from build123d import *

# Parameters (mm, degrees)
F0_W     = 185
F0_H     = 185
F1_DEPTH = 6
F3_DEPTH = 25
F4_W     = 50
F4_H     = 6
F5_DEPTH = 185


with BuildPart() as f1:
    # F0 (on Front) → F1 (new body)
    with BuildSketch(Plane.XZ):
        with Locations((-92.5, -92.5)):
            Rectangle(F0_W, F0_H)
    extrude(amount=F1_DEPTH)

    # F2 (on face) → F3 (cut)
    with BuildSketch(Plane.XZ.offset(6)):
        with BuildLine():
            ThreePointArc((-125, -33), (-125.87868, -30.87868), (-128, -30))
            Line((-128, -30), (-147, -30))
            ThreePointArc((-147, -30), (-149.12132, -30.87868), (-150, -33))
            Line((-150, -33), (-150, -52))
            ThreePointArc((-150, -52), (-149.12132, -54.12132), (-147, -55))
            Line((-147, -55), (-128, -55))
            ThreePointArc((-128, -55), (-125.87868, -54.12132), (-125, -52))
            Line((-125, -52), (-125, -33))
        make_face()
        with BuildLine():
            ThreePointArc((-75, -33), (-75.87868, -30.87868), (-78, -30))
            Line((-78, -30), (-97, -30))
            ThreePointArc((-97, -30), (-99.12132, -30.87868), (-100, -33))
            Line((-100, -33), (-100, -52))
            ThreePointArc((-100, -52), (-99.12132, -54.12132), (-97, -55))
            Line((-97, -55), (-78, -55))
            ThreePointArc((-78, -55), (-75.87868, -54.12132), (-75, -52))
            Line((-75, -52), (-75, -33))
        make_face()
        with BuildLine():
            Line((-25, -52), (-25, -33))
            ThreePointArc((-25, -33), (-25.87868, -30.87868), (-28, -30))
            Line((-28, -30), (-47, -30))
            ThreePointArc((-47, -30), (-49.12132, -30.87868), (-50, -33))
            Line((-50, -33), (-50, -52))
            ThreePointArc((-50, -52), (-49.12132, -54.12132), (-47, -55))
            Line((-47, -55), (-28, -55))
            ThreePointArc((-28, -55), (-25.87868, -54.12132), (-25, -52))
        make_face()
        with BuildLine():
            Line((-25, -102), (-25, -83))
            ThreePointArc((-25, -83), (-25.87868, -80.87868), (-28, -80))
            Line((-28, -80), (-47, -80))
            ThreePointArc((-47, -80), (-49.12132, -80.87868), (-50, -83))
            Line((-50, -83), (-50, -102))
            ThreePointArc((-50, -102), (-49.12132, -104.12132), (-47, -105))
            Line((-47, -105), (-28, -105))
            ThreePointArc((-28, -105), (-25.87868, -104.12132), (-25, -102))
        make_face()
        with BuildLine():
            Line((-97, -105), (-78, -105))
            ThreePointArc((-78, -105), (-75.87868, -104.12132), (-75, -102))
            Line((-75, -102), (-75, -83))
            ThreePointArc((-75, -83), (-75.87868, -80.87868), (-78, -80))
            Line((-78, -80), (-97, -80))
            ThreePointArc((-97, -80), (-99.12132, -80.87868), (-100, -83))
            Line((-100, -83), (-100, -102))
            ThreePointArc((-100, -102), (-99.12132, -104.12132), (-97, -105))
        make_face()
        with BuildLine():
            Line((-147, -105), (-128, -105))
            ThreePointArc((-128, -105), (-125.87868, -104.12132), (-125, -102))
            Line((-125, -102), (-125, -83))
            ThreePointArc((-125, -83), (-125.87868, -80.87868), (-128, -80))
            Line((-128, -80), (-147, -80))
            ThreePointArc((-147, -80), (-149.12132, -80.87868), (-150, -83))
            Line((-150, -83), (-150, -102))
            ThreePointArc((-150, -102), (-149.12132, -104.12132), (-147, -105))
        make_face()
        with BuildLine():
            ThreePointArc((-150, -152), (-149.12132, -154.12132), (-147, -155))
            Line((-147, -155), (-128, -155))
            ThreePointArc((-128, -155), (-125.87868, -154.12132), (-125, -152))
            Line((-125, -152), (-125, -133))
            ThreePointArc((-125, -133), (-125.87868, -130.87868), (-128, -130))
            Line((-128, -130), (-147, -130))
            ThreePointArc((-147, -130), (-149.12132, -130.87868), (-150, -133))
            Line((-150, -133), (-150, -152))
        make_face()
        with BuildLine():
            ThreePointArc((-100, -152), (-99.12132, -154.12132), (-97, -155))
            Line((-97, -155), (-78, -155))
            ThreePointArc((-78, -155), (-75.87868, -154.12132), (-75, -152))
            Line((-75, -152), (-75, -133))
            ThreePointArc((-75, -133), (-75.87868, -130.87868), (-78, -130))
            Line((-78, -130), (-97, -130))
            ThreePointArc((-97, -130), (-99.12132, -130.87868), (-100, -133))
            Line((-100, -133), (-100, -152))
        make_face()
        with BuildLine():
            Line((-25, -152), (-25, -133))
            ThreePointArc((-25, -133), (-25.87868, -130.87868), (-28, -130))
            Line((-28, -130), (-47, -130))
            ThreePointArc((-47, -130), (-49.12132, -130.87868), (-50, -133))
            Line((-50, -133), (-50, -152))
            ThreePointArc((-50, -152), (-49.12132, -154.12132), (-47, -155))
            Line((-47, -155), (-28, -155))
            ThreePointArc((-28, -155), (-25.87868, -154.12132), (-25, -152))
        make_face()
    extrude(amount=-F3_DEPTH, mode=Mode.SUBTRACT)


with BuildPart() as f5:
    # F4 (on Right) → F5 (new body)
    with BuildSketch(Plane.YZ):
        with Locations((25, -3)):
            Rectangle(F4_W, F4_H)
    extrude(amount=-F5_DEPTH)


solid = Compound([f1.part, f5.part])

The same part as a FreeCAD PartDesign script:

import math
import FreeCAD as App
import Part
import Sketcher
Q = App.Units.Quantity

doc = App.newDocument("Part")
body = doc.addObject("PartDesign::Body", "Body")

# Sketch on XZ plane
sketch1 = body.newObject("Sketcher::SketchObject", "Sketch")
sketch1.AttachmentSupport = (doc.getObject("XZ_Plane"), [""])
sketch1.MapMode = "FlatFace"
sketch1.addGeometry([
    Part.LineSegment(App.Vector(-185, 0, 0), App.Vector(-185, -185, 0)),
    Part.LineSegment(App.Vector(-185, -185, 0), App.Vector(0, -185, 0)),
    Part.LineSegment(App.Vector(0, -185, 0), App.Vector(0, 0, 0)),
    Part.LineSegment(App.Vector(0, 0, 0), App.Vector(-185, 0, 0)),
], False)
sketch1.addConstraint([
    Sketcher.Constraint("Coincident", 0, 2, 1, 1),
    Sketcher.Constraint("Coincident", 1, 2, 2, 1),
    Sketcher.Constraint("Coincident", 2, 2, 3, 1),
    Sketcher.Constraint("Coincident", 3, 2, 0, 1),
    Sketcher.Constraint("Vertical", 0),
    Sketcher.Constraint("Horizontal", 1),
    Sketcher.Constraint("Vertical", 2),
    Sketcher.Constraint("Horizontal", 3),
    Sketcher.Constraint("Coincident", 2, 2, -1, 1),
    Sketcher.Constraint("Equal", 3, 0),
    Sketcher.Constraint("DistanceX", 1, 1, 1, 2, Q("185 mm")),
])
pad1 = body.newObject("PartDesign::Pad", "Pad")
pad1.Profile = sketch1
pad1.Length = 6

# Sketch on XZ plane
sketch2 = body.newObject("Sketcher::SketchObject", "Sketch001")
sketch2.AttachmentSupport = (doc.getObject("XZ_Plane"), [""])
sketch2.MapMode = "FlatFace"
sketch2.AttachmentOffset = App.Placement(App.Vector(0, 0, 6), App.Rotation())
sketch2.addGeometry([
    Part.ArcOfCircle(Part.Circle(App.Vector(-128, -33, 0), App.Vector(0, 0, 1), 3), math.radians(0), math.radians(90)),  # 0
    Part.LineSegment(App.Vector(-128, -30, 0), App.Vector(-147, -30, 0)),  # 1
    Part.ArcOfCircle(Part.Circle(App.Vector(-147, -33, 0), App.Vector(0, 0, 1), 3), math.radians(90), math.radians(180)),  # 2
    Part.LineSegment(App.Vector(-150, -33, 0), App.Vector(-150, -52, 0)),  # 3
    Part.ArcOfCircle(Part.Circle(App.Vector(-147, -52, 0), App.Vector(0, 0, 1), 3), math.radians(-180), math.radians(-90)),  # 4
    Part.LineSegment(App.Vector(-147, -55, 0), App.Vector(-128, -55, 0)),  # 5
    Part.ArcOfCircle(Part.Circle(App.Vector(-128, -52, 0), App.Vector(0, 0, 1), 3), math.radians(-90), math.radians(0)),  # 6
    Part.LineSegment(App.Vector(-125, -52, 0), App.Vector(-125, -33, 0)),  # 7
    Part.ArcOfCircle(Part.Circle(App.Vector(-78, -33, 0), App.Vector(0, 0, 1), 3), math.radians(0), math.radians(90)),  # 8
    Part.LineSegment(App.Vector(-78, -30, 0), App.Vector(-97, -30, 0)),  # 9
    Part.ArcOfCircle(Part.Circle(App.Vector(-97, -33, 0), App.Vector(0, 0, 1), 3), math.radians(90), math.radians(180)),  # 10
    Part.LineSegment(App.Vector(-100, -33, 0), App.Vector(-100, -52, 0)),  # 11
    Part.ArcOfCircle(Part.Circle(App.Vector(-97, -52, 0), App.Vector(0, 0, 1), 3), math.radians(-180), math.radians(-90)),  # 12
    Part.LineSegment(App.Vector(-97, -55, 0), App.Vector(-78, -55, 0)),  # 13
    Part.ArcOfCircle(Part.Circle(App.Vector(-78, -52, 0), App.Vector(0, 0, 1), 3), math.radians(-90), math.radians(0)),  # 14
    Part.LineSegment(App.Vector(-75, -52, 0), App.Vector(-75, -33, 0)),  # 15
    Part.LineSegment(App.Vector(-25, -52, 0), App.Vector(-25, -33, 0)),  # 16
    Part.ArcOfCircle(Part.Circle(App.Vector(-28, -33, 0), App.Vector(0, 0, 1), 3), math.radians(0), math.radians(90)),  # 17
    Part.LineSegment(App.Vector(-28, -30, 0), App.Vector(-47, -30, 0)),  # 18
    Part.ArcOfCircle(Part.Circle(App.Vector(-47, -33, 0), App.Vector(0, 0, 1), 3), math.radians(90), math.radians(180)),  # 19
    Part.LineSegment(App.Vector(-50, -33, 0), App.Vector(-50, -52, 0)),  # 20
    Part.ArcOfCircle(Part.Circle(App.Vector(-47, -52, 0), App.Vector(0, 0, 1), 3), math.radians(-180), math.radians(-90)),  # 21
    Part.LineSegment(App.Vector(-47, -55, 0), App.Vector(-28, -55, 0)),  # 22
    Part.ArcOfCircle(Part.Circle(App.Vector(-28, -52, 0), App.Vector(0, 0, 1), 3), math.radians(-90), math.radians(0)),  # 23
    Part.LineSegment(App.Vector(-25, -102, 0), App.Vector(-25, -83, 0)),  # 24
    Part.ArcOfCircle(Part.Circle(App.Vector(-28, -83, 0), App.Vector(0, 0, 1), 3), math.radians(0), math.radians(90)),  # 25
    Part.LineSegment(App.Vector(-28, -80, 0), App.Vector(-47, -80, 0)),  # 26
    Part.ArcOfCircle(Part.Circle(App.Vector(-47, -83, 0), App.Vector(0, 0, 1), 3), math.radians(90), math.radians(180)),  # 27
    Part.LineSegment(App.Vector(-50, -83, 0), App.Vector(-50, -102, 0)),  # 28
    Part.ArcOfCircle(Part.Circle(App.Vector(-47, -102, 0), App.Vector(0, 0, 1), 3), math.radians(-180), math.radians(-90)),  # 29
    Part.LineSegment(App.Vector(-47, -105, 0), App.Vector(-28, -105, 0)),  # 30
    Part.ArcOfCircle(Part.Circle(App.Vector(-28, -102, 0), App.Vector(0, 0, 1), 3), math.radians(-90), math.radians(0)),  # 31
    Part.LineSegment(App.Vector(-97, -105, 0), App.Vector(-78, -105, 0)),  # 32
    Part.ArcOfCircle(Part.Circle(App.Vector(-78, -102, 0), App.Vector(0, 0, 1), 3), math.radians(-90), math.radians(0)),  # 33
    Part.LineSegment(App.Vector(-75, -102, 0), App.Vector(-75, -83, 0)),  # 34
    Part.ArcOfCircle(Part.Circle(App.Vector(-78, -83, 0), App.Vector(0, 0, 1), 3), math.radians(0), math.radians(90)),  # 35
    Part.LineSegment(App.Vector(-78, -80, 0), App.Vector(-97, -80, 0)),  # 36
    Part.ArcOfCircle(Part.Circle(App.Vector(-97, -83, 0), App.Vector(0, 0, 1), 3), math.radians(90), math.radians(180)),  # 37
    Part.LineSegment(App.Vector(-100, -83, 0), App.Vector(-100, -102, 0)),  # 38
    Part.ArcOfCircle(Part.Circle(App.Vector(-97, -102, 0), App.Vector(0, 0, 1), 3), math.radians(-180), math.radians(-90)),  # 39
    Part.LineSegment(App.Vector(-147, -105, 0), App.Vector(-128, -105, 0)),  # 40
    Part.ArcOfCircle(Part.Circle(App.Vector(-128, -102, 0), App.Vector(0, 0, 1), 3), math.radians(-90), math.radians(0)),  # 41
    Part.LineSegment(App.Vector(-125, -102, 0), App.Vector(-125, -83, 0)),  # 42
    Part.ArcOfCircle(Part.Circle(App.Vector(-128, -83, 0), App.Vector(0, 0, 1), 3), math.radians(0), math.radians(90)),  # 43
    Part.LineSegment(App.Vector(-128, -80, 0), App.Vector(-147, -80, 0)),  # 44
    Part.ArcOfCircle(Part.Circle(App.Vector(-147, -83, 0), App.Vector(0, 0, 1), 3), math.radians(90), math.radians(180)),  # 45
    Part.LineSegment(App.Vector(-150, -83, 0), App.Vector(-150, -102, 0)),  # 46
    Part.ArcOfCircle(Part.Circle(App.Vector(-147, -102, 0), App.Vector(0, 0, 1), 3), math.radians(-180), math.radians(-90)),  # 47
    Part.ArcOfCircle(Part.Circle(App.Vector(-147, -152, 0), App.Vector(0, 0, 1), 3), math.radians(-180), math.radians(-90)),  # 48
    Part.LineSegment(App.Vector(-147, -155, 0), App.Vector(-128, -155, 0)),  # 49
    Part.ArcOfCircle(Part.Circle(App.Vector(-128, -152, 0), App.Vector(0, 0, 1), 3), math.radians(-90), math.radians(0)),  # 50
    Part.LineSegment(App.Vector(-125, -152, 0), App.Vector(-125, -133, 0)),  # 51
    Part.ArcOfCircle(Part.Circle(App.Vector(-128, -133, 0), App.Vector(0, 0, 1), 3), math.radians(0), math.radians(90)),  # 52
    Part.LineSegment(App.Vector(-128, -130, 0), App.Vector(-147, -130, 0)),  # 53
    Part.ArcOfCircle(Part.Circle(App.Vector(-147, -133, 0), App.Vector(0, 0, 1), 3), math.radians(90), math.radians(180)),  # 54
    Part.LineSegment(App.Vector(-150, -133, 0), App.Vector(-150, -152, 0)),  # 55
    Part.ArcOfCircle(Part.Circle(App.Vector(-97, -152, 0), App.Vector(0, 0, 1), 3), math.radians(-180), math.radians(-90)),  # 56
    Part.LineSegment(App.Vector(-97, -155, 0), App.Vector(-78, -155, 0)),  # 57
    Part.ArcOfCircle(Part.Circle(App.Vector(-78, -152, 0), App.Vector(0, 0, 1), 3), math.radians(-90), math.radians(0)),  # 58
    Part.LineSegment(App.Vector(-75, -152, 0), App.Vector(-75, -133, 0)),  # 59
    Part.ArcOfCircle(Part.Circle(App.Vector(-78, -133, 0), App.Vector(0, 0, 1), 3), math.radians(0), math.radians(90)),  # 60
    Part.LineSegment(App.Vector(-78, -130, 0), App.Vector(-97, -130, 0)),  # 61
    Part.ArcOfCircle(Part.Circle(App.Vector(-97, -133, 0), App.Vector(0, 0, 1), 3), math.radians(90), math.radians(180)),  # 62
    Part.LineSegment(App.Vector(-100, -133, 0), App.Vector(-100, -152, 0)),  # 63
    Part.LineSegment(App.Vector(-25, -152, 0), App.Vector(-25, -133, 0)),  # 64
    Part.ArcOfCircle(Part.Circle(App.Vector(-28, -133, 0), App.Vector(0, 0, 1), 3), math.radians(0), math.radians(90)),  # 65
    Part.LineSegment(App.Vector(-28, -130, 0), App.Vector(-47, -130, 0)),  # 66
    Part.ArcOfCircle(Part.Circle(App.Vector(-47, -133, 0), App.Vector(0, 0, 1), 3), math.radians(90), math.radians(180)),  # 67
    Part.LineSegment(App.Vector(-50, -133, 0), App.Vector(-50, -152, 0)),  # 68
    Part.ArcOfCircle(Part.Circle(App.Vector(-47, -152, 0), App.Vector(0, 0, 1), 3), math.radians(-180), math.radians(-90)),  # 69
    Part.LineSegment(App.Vector(-47, -155, 0), App.Vector(-28, -155, 0)),  # 70
    Part.ArcOfCircle(Part.Circle(App.Vector(-28, -152, 0), App.Vector(0, 0, 1), 3), math.radians(-90), math.radians(0)),  # 71
], False)
sketch2.addConstraint([
    Sketcher.Constraint("Tangent", 0, 2, 1, 1),
    Sketcher.Constraint("Tangent", 1, 2, 2, 1),
    Sketcher.Constraint("Tangent", 2, 2, 3, 1),
    Sketcher.Constraint("Tangent", 3, 2, 4, 1),
    Sketcher.Constraint("Tangent", 4, 2, 5, 1),
    Sketcher.Constraint("Tangent", 5, 2, 6, 1),
    Sketcher.Constraint("Tangent", 6, 2, 7, 1),
    Sketcher.Constraint("Tangent", 7, 2, 0, 1),
    Sketcher.Constraint("Tangent", 8, 2, 9, 1),
    Sketcher.Constraint("Tangent", 9, 2, 10, 1),
    Sketcher.Constraint("Tangent", 10, 2, 11, 1),
    Sketcher.Constraint("Tangent", 11, 2, 12, 1),
    Sketcher.Constraint("Tangent", 12, 2, 13, 1),
    Sketcher.Constraint("Tangent", 13, 2, 14, 1),
    Sketcher.Constraint("Tangent", 14, 2, 15, 1),
    Sketcher.Constraint("Tangent", 15, 2, 8, 1),
    Sketcher.Constraint("Tangent", 16, 2, 17, 1),
    Sketcher.Constraint("Tangent", 17, 2, 18, 1),
    Sketcher.Constraint("Tangent", 18, 2, 19, 1),
    Sketcher.Constraint("Tangent", 19, 2, 20, 1),
    Sketcher.Constraint("Tangent", 20, 2, 21, 1),
    Sketcher.Constraint("Tangent", 21, 2, 22, 1),
    Sketcher.Constraint("Tangent", 22, 2, 23, 1),
    Sketcher.Constraint("Tangent", 23, 2, 16, 1),
    Sketcher.Constraint("Tangent", 24, 2, 25, 1),
    Sketcher.Constraint("Tangent", 25, 2, 26, 1),
    Sketcher.Constraint("Tangent", 26, 2, 27, 1),
    Sketcher.Constraint("Tangent", 27, 2, 28, 1),
    Sketcher.Constraint("Tangent", 28, 2, 29, 1),
    Sketcher.Constraint("Tangent", 29, 2, 30, 1),
    Sketcher.Constraint("Tangent", 30, 2, 31, 1),
    Sketcher.Constraint("Tangent", 31, 2, 24, 1),
    Sketcher.Constraint("Tangent", 32, 2, 33, 1),
    Sketcher.Constraint("Tangent", 33, 2, 34, 1),
    Sketcher.Constraint("Tangent", 34, 2, 35, 1),
    Sketcher.Constraint("Tangent", 35, 2, 36, 1),
    Sketcher.Constraint("Tangent", 36, 2, 37, 1),
    Sketcher.Constraint("Tangent", 37, 2, 38, 1),
    Sketcher.Constraint("Tangent", 38, 2, 39, 1),
    Sketcher.Constraint("Tangent", 39, 2, 32, 1),
    Sketcher.Constraint("Tangent", 40, 2, 41, 1),
    Sketcher.Constraint("Tangent", 41, 2, 42, 1),
    Sketcher.Constraint("Tangent", 42, 2, 43, 1),
    Sketcher.Constraint("Tangent", 43, 2, 44, 1),
    Sketcher.Constraint("Tangent", 44, 2, 45, 1),
    Sketcher.Constraint("Tangent", 45, 2, 46, 1),
    Sketcher.Constraint("Tangent", 46, 2, 47, 1),
    Sketcher.Constraint("Tangent", 47, 2, 40, 1),
    Sketcher.Constraint("Tangent", 48, 2, 49, 1),
    Sketcher.Constraint("Tangent", 49, 2, 50, 1),
    Sketcher.Constraint("Tangent", 50, 2, 51, 1),
    Sketcher.Constraint("Tangent", 51, 2, 52, 1),
    Sketcher.Constraint("Tangent", 52, 2, 53, 1),
    Sketcher.Constraint("Tangent", 53, 2, 54, 1),
    Sketcher.Constraint("Tangent", 54, 2, 55, 1),
    Sketcher.Constraint("Tangent", 55, 2, 48, 1),
    Sketcher.Constraint("Tangent", 56, 2, 57, 1),
    Sketcher.Constraint("Tangent", 57, 2, 58, 1),
    Sketcher.Constraint("Tangent", 58, 2, 59, 1),
    Sketcher.Constraint("Tangent", 59, 2, 60, 1),
    Sketcher.Constraint("Tangent", 60, 2, 61, 1),
    Sketcher.Constraint("Tangent", 61, 2, 62, 1),
    Sketcher.Constraint("Tangent", 62, 2, 63, 1),
    Sketcher.Constraint("Tangent", 63, 2, 56, 1),
    Sketcher.Constraint("Tangent", 64, 2, 65, 1),
    Sketcher.Constraint("Tangent", 65, 2, 66, 1),
    Sketcher.Constraint("Tangent", 66, 2, 67, 1),
    Sketcher.Constraint("Tangent", 67, 2, 68, 1),
    Sketcher.Constraint("Tangent", 68, 2, 69, 1),
    Sketcher.Constraint("Tangent", 69, 2, 70, 1),
    Sketcher.Constraint("Tangent", 70, 2, 71, 1),
    Sketcher.Constraint("Tangent", 71, 2, 64, 1),
    Sketcher.Constraint("Horizontal", 1),
    Sketcher.Constraint("Vertical", 3),
    Sketcher.Constraint("Horizontal", 5),
    Sketcher.Constraint("Vertical", 7),
    Sketcher.Constraint("Horizontal", 9),
    Sketcher.Constraint("Vertical", 11),
    Sketcher.Constraint("Horizontal", 13),
    Sketcher.Constraint("Vertical", 15),
    Sketcher.Constraint("Vertical", 16),
    Sketcher.Constraint("Horizontal", 18),
    Sketcher.Constraint("Vertical", 20),
    Sketcher.Constraint("Horizontal", 22),
    Sketcher.Constraint("Vertical", 24),
    Sketcher.Constraint("Horizontal", 26),
    Sketcher.Constraint("Vertical", 28),
    Sketcher.Constraint("Horizontal", 30),
    Sketcher.Constraint("Horizontal", 32),
    Sketcher.Constraint("Vertical", 34),
    Sketcher.Constraint("Horizontal", 36),
    Sketcher.Constraint("Vertical", 38),
    Sketcher.Constraint("Horizontal", 40),
    Sketcher.Constraint("Vertical", 42),
    Sketcher.Constraint("Horizontal", 44),
    Sketcher.Constraint("Vertical", 46),
    Sketcher.Constraint("Horizontal", 49),
    Sketcher.Constraint("Vertical", 51),
    Sketcher.Constraint("Horizontal", 53),
    Sketcher.Constraint("Vertical", 55),
    Sketcher.Constraint("Horizontal", 57),
    Sketcher.Constraint("Vertical", 59),
    Sketcher.Constraint("Horizontal", 61),
    Sketcher.Constraint("Vertical", 63),
    Sketcher.Constraint("Vertical", 64),
    Sketcher.Constraint("Horizontal", 66),
    Sketcher.Constraint("Vertical", 68),
    Sketcher.Constraint("Horizontal", 70),
    Sketcher.Constraint("Equal", 0, 2),
    Sketcher.Constraint("Equal", 2, 4),
    Sketcher.Constraint("Equal", 4, 6),
    Sketcher.Constraint("Equal", 6, 8),
    Sketcher.Constraint("Equal", 8, 10),
    Sketcher.Constraint("Equal", 10, 12),
    Sketcher.Constraint("Equal", 12, 14),
    Sketcher.Constraint("Equal", 14, 17),
    Sketcher.Constraint("Equal", 17, 19),
    Sketcher.Constraint("Equal", 19, 21),
    Sketcher.Constraint("Equal", 21, 23),
    Sketcher.Constraint("Equal", 23, 25),
    Sketcher.Constraint("Equal", 25, 27),
    Sketcher.Constraint("Equal", 27, 29),
    Sketcher.Constraint("Equal", 29, 31),
    Sketcher.Constraint("Equal", 31, 33),
    Sketcher.Constraint("Equal", 33, 35),
    Sketcher.Constraint("Equal", 35, 37),
    Sketcher.Constraint("Equal", 37, 39),
    Sketcher.Constraint("Equal", 39, 41),
    Sketcher.Constraint("Equal", 41, 43),
    Sketcher.Constraint("Equal", 43, 45),
    Sketcher.Constraint("Equal", 45, 47),
    Sketcher.Constraint("Equal", 47, 48),
    Sketcher.Constraint("Equal", 48, 50),
    Sketcher.Constraint("Equal", 50, 52),
    Sketcher.Constraint("Equal", 52, 54),
    Sketcher.Constraint("Equal", 54, 56),
    Sketcher.Constraint("Equal", 56, 58),
    Sketcher.Constraint("Equal", 58, 60),
    Sketcher.Constraint("Equal", 60, 62),
    Sketcher.Constraint("Equal", 62, 65),
    Sketcher.Constraint("Equal", 65, 67),
    Sketcher.Constraint("Equal", 67, 69),
    Sketcher.Constraint("Equal", 69, 71),
    Sketcher.Constraint("Horizontal", 2, 3, 8, 3),
    Sketcher.Constraint("Horizontal", 6, 3, 12, 3),
    Sketcher.Constraint("Horizontal", 10, 3, 17, 3),
    Sketcher.Constraint("Horizontal", 14, 3, 21, 3),
    Sketcher.Constraint("Horizontal", 31, 3, 33, 3),
    Sketcher.Constraint("Horizontal", 27, 3, 35, 3),
    Sketcher.Constraint("Horizontal", 39, 3, 41, 3),
    Sketcher.Constraint("Horizontal", 37, 3, 43, 3),
    Sketcher.Constraint("Horizontal", 50, 3, 56, 3),
    Sketcher.Constraint("Horizontal", 54, 3, 60, 3),
    Sketcher.Constraint("Horizontal", 62, 3, 65, 3),
    Sketcher.Constraint("Horizontal", 58, 3, 69, 3),
    Sketcher.Constraint("Vertical", 23, 3, 25, 3),
    Sketcher.Constraint("Vertical", 21, 3, 27, 3),
    Sketcher.Constraint("Vertical", 14, 3, 33, 3),
    Sketcher.Constraint("Vertical", 12, 3, 37, 3),
    Sketcher.Constraint("Vertical", 6, 3, 41, 3),
    Sketcher.Constraint("Vertical", 4, 3, 45, 3),
    Sketcher.Constraint("Vertical", 47, 3, 48, 3),
    Sketcher.Constraint("Vertical", 43, 3, 50, 3),
    Sketcher.Constraint("Vertical", 39, 3, 56, 3),
    Sketcher.Constraint("Vertical", 35, 3, 58, 3),
    Sketcher.Constraint("Vertical", 31, 3, 65, 3),
    Sketcher.Constraint("Vertical", 29, 3, 67, 3),
    Sketcher.Constraint("Equal", 5, 9),
    Sketcher.Constraint("Equal", 13, 18),
    Sketcher.Constraint("Equal", 70, 3),
    Sketcher.Constraint("Equal", 20, 24),
    Sketcher.Constraint("Equal", 46, 51),
    Sketcher.Constraint("Radius", 0, Q("3.000001 mm")),
    Sketcher.Constraint("DistanceX", 1, 2, 1, 1, Q("19 mm")),
    Sketcher.Constraint("DistanceX", 0, 3, -1, 1, Q("128.000001 mm")),
    Sketcher.Constraint("DistanceY", 0, 3, -1, 1, Q("33.000001 mm")),
    Sketcher.Constraint("DistanceX", 8, 3, -1, 1, Q("78.000001 mm")),
    Sketcher.Constraint("DistanceX", 17, 3, -1, 1, Q("28.000001 mm")),
    Sketcher.Constraint("DistanceY", 25, 3, -1, 1, Q("83.000001 mm")),
    Sketcher.Constraint("DistanceY", 48, 3, -1, 1, Q("151.999999 mm")),
])
pocket1 = body.newObject("PartDesign::Pocket", "Pocket")
pocket1.Profile = sketch2
pocket1.Length = 25
body2 = doc.addObject("PartDesign::Body", "Body001")

# Sketch on YZ plane
sketch3 = body2.newObject("Sketcher::SketchObject", "Sketch002")
sketch3.AttachmentSupport = (doc.getObject("YZ_Plane001"), [""])
sketch3.MapMode = "FlatFace"
sketch3.addGeometry([
    Part.LineSegment(App.Vector(0, 0, 0), App.Vector(0, -6, 0)),
    Part.LineSegment(App.Vector(0, -6, 0), App.Vector(50, -6, 0)),
    Part.LineSegment(App.Vector(50, -6, 0), App.Vector(50, 0, 0)),
    Part.LineSegment(App.Vector(50, 0, 0), App.Vector(0, 0, 0)),
], False)
sketch3.addConstraint([
    Sketcher.Constraint("Coincident", 0, 2, 1, 1),
    Sketcher.Constraint("Coincident", 1, 2, 2, 1),
    Sketcher.Constraint("Coincident", 2, 2, 3, 1),
    Sketcher.Constraint("Coincident", 3, 2, 0, 1),
    Sketcher.Constraint("Vertical", 0),
    Sketcher.Constraint("Horizontal", 1),
    Sketcher.Constraint("Vertical", 2),
    Sketcher.Constraint("Horizontal", 3),
    Sketcher.Constraint("Coincident", 3, 2, -1, 1),
    Sketcher.Constraint("DistanceX", 1, 1, 1, 2, Q("50 mm")),
    Sketcher.Constraint("DistanceY", 0, 2, 0, 1, Q("6 mm")),
])
pad2 = body2.newObject("PartDesign::Pad", "Pad001")
pad2.Profile = sketch3
pad2.Length = 185
pad2.Reversed = True

doc.recompute()
